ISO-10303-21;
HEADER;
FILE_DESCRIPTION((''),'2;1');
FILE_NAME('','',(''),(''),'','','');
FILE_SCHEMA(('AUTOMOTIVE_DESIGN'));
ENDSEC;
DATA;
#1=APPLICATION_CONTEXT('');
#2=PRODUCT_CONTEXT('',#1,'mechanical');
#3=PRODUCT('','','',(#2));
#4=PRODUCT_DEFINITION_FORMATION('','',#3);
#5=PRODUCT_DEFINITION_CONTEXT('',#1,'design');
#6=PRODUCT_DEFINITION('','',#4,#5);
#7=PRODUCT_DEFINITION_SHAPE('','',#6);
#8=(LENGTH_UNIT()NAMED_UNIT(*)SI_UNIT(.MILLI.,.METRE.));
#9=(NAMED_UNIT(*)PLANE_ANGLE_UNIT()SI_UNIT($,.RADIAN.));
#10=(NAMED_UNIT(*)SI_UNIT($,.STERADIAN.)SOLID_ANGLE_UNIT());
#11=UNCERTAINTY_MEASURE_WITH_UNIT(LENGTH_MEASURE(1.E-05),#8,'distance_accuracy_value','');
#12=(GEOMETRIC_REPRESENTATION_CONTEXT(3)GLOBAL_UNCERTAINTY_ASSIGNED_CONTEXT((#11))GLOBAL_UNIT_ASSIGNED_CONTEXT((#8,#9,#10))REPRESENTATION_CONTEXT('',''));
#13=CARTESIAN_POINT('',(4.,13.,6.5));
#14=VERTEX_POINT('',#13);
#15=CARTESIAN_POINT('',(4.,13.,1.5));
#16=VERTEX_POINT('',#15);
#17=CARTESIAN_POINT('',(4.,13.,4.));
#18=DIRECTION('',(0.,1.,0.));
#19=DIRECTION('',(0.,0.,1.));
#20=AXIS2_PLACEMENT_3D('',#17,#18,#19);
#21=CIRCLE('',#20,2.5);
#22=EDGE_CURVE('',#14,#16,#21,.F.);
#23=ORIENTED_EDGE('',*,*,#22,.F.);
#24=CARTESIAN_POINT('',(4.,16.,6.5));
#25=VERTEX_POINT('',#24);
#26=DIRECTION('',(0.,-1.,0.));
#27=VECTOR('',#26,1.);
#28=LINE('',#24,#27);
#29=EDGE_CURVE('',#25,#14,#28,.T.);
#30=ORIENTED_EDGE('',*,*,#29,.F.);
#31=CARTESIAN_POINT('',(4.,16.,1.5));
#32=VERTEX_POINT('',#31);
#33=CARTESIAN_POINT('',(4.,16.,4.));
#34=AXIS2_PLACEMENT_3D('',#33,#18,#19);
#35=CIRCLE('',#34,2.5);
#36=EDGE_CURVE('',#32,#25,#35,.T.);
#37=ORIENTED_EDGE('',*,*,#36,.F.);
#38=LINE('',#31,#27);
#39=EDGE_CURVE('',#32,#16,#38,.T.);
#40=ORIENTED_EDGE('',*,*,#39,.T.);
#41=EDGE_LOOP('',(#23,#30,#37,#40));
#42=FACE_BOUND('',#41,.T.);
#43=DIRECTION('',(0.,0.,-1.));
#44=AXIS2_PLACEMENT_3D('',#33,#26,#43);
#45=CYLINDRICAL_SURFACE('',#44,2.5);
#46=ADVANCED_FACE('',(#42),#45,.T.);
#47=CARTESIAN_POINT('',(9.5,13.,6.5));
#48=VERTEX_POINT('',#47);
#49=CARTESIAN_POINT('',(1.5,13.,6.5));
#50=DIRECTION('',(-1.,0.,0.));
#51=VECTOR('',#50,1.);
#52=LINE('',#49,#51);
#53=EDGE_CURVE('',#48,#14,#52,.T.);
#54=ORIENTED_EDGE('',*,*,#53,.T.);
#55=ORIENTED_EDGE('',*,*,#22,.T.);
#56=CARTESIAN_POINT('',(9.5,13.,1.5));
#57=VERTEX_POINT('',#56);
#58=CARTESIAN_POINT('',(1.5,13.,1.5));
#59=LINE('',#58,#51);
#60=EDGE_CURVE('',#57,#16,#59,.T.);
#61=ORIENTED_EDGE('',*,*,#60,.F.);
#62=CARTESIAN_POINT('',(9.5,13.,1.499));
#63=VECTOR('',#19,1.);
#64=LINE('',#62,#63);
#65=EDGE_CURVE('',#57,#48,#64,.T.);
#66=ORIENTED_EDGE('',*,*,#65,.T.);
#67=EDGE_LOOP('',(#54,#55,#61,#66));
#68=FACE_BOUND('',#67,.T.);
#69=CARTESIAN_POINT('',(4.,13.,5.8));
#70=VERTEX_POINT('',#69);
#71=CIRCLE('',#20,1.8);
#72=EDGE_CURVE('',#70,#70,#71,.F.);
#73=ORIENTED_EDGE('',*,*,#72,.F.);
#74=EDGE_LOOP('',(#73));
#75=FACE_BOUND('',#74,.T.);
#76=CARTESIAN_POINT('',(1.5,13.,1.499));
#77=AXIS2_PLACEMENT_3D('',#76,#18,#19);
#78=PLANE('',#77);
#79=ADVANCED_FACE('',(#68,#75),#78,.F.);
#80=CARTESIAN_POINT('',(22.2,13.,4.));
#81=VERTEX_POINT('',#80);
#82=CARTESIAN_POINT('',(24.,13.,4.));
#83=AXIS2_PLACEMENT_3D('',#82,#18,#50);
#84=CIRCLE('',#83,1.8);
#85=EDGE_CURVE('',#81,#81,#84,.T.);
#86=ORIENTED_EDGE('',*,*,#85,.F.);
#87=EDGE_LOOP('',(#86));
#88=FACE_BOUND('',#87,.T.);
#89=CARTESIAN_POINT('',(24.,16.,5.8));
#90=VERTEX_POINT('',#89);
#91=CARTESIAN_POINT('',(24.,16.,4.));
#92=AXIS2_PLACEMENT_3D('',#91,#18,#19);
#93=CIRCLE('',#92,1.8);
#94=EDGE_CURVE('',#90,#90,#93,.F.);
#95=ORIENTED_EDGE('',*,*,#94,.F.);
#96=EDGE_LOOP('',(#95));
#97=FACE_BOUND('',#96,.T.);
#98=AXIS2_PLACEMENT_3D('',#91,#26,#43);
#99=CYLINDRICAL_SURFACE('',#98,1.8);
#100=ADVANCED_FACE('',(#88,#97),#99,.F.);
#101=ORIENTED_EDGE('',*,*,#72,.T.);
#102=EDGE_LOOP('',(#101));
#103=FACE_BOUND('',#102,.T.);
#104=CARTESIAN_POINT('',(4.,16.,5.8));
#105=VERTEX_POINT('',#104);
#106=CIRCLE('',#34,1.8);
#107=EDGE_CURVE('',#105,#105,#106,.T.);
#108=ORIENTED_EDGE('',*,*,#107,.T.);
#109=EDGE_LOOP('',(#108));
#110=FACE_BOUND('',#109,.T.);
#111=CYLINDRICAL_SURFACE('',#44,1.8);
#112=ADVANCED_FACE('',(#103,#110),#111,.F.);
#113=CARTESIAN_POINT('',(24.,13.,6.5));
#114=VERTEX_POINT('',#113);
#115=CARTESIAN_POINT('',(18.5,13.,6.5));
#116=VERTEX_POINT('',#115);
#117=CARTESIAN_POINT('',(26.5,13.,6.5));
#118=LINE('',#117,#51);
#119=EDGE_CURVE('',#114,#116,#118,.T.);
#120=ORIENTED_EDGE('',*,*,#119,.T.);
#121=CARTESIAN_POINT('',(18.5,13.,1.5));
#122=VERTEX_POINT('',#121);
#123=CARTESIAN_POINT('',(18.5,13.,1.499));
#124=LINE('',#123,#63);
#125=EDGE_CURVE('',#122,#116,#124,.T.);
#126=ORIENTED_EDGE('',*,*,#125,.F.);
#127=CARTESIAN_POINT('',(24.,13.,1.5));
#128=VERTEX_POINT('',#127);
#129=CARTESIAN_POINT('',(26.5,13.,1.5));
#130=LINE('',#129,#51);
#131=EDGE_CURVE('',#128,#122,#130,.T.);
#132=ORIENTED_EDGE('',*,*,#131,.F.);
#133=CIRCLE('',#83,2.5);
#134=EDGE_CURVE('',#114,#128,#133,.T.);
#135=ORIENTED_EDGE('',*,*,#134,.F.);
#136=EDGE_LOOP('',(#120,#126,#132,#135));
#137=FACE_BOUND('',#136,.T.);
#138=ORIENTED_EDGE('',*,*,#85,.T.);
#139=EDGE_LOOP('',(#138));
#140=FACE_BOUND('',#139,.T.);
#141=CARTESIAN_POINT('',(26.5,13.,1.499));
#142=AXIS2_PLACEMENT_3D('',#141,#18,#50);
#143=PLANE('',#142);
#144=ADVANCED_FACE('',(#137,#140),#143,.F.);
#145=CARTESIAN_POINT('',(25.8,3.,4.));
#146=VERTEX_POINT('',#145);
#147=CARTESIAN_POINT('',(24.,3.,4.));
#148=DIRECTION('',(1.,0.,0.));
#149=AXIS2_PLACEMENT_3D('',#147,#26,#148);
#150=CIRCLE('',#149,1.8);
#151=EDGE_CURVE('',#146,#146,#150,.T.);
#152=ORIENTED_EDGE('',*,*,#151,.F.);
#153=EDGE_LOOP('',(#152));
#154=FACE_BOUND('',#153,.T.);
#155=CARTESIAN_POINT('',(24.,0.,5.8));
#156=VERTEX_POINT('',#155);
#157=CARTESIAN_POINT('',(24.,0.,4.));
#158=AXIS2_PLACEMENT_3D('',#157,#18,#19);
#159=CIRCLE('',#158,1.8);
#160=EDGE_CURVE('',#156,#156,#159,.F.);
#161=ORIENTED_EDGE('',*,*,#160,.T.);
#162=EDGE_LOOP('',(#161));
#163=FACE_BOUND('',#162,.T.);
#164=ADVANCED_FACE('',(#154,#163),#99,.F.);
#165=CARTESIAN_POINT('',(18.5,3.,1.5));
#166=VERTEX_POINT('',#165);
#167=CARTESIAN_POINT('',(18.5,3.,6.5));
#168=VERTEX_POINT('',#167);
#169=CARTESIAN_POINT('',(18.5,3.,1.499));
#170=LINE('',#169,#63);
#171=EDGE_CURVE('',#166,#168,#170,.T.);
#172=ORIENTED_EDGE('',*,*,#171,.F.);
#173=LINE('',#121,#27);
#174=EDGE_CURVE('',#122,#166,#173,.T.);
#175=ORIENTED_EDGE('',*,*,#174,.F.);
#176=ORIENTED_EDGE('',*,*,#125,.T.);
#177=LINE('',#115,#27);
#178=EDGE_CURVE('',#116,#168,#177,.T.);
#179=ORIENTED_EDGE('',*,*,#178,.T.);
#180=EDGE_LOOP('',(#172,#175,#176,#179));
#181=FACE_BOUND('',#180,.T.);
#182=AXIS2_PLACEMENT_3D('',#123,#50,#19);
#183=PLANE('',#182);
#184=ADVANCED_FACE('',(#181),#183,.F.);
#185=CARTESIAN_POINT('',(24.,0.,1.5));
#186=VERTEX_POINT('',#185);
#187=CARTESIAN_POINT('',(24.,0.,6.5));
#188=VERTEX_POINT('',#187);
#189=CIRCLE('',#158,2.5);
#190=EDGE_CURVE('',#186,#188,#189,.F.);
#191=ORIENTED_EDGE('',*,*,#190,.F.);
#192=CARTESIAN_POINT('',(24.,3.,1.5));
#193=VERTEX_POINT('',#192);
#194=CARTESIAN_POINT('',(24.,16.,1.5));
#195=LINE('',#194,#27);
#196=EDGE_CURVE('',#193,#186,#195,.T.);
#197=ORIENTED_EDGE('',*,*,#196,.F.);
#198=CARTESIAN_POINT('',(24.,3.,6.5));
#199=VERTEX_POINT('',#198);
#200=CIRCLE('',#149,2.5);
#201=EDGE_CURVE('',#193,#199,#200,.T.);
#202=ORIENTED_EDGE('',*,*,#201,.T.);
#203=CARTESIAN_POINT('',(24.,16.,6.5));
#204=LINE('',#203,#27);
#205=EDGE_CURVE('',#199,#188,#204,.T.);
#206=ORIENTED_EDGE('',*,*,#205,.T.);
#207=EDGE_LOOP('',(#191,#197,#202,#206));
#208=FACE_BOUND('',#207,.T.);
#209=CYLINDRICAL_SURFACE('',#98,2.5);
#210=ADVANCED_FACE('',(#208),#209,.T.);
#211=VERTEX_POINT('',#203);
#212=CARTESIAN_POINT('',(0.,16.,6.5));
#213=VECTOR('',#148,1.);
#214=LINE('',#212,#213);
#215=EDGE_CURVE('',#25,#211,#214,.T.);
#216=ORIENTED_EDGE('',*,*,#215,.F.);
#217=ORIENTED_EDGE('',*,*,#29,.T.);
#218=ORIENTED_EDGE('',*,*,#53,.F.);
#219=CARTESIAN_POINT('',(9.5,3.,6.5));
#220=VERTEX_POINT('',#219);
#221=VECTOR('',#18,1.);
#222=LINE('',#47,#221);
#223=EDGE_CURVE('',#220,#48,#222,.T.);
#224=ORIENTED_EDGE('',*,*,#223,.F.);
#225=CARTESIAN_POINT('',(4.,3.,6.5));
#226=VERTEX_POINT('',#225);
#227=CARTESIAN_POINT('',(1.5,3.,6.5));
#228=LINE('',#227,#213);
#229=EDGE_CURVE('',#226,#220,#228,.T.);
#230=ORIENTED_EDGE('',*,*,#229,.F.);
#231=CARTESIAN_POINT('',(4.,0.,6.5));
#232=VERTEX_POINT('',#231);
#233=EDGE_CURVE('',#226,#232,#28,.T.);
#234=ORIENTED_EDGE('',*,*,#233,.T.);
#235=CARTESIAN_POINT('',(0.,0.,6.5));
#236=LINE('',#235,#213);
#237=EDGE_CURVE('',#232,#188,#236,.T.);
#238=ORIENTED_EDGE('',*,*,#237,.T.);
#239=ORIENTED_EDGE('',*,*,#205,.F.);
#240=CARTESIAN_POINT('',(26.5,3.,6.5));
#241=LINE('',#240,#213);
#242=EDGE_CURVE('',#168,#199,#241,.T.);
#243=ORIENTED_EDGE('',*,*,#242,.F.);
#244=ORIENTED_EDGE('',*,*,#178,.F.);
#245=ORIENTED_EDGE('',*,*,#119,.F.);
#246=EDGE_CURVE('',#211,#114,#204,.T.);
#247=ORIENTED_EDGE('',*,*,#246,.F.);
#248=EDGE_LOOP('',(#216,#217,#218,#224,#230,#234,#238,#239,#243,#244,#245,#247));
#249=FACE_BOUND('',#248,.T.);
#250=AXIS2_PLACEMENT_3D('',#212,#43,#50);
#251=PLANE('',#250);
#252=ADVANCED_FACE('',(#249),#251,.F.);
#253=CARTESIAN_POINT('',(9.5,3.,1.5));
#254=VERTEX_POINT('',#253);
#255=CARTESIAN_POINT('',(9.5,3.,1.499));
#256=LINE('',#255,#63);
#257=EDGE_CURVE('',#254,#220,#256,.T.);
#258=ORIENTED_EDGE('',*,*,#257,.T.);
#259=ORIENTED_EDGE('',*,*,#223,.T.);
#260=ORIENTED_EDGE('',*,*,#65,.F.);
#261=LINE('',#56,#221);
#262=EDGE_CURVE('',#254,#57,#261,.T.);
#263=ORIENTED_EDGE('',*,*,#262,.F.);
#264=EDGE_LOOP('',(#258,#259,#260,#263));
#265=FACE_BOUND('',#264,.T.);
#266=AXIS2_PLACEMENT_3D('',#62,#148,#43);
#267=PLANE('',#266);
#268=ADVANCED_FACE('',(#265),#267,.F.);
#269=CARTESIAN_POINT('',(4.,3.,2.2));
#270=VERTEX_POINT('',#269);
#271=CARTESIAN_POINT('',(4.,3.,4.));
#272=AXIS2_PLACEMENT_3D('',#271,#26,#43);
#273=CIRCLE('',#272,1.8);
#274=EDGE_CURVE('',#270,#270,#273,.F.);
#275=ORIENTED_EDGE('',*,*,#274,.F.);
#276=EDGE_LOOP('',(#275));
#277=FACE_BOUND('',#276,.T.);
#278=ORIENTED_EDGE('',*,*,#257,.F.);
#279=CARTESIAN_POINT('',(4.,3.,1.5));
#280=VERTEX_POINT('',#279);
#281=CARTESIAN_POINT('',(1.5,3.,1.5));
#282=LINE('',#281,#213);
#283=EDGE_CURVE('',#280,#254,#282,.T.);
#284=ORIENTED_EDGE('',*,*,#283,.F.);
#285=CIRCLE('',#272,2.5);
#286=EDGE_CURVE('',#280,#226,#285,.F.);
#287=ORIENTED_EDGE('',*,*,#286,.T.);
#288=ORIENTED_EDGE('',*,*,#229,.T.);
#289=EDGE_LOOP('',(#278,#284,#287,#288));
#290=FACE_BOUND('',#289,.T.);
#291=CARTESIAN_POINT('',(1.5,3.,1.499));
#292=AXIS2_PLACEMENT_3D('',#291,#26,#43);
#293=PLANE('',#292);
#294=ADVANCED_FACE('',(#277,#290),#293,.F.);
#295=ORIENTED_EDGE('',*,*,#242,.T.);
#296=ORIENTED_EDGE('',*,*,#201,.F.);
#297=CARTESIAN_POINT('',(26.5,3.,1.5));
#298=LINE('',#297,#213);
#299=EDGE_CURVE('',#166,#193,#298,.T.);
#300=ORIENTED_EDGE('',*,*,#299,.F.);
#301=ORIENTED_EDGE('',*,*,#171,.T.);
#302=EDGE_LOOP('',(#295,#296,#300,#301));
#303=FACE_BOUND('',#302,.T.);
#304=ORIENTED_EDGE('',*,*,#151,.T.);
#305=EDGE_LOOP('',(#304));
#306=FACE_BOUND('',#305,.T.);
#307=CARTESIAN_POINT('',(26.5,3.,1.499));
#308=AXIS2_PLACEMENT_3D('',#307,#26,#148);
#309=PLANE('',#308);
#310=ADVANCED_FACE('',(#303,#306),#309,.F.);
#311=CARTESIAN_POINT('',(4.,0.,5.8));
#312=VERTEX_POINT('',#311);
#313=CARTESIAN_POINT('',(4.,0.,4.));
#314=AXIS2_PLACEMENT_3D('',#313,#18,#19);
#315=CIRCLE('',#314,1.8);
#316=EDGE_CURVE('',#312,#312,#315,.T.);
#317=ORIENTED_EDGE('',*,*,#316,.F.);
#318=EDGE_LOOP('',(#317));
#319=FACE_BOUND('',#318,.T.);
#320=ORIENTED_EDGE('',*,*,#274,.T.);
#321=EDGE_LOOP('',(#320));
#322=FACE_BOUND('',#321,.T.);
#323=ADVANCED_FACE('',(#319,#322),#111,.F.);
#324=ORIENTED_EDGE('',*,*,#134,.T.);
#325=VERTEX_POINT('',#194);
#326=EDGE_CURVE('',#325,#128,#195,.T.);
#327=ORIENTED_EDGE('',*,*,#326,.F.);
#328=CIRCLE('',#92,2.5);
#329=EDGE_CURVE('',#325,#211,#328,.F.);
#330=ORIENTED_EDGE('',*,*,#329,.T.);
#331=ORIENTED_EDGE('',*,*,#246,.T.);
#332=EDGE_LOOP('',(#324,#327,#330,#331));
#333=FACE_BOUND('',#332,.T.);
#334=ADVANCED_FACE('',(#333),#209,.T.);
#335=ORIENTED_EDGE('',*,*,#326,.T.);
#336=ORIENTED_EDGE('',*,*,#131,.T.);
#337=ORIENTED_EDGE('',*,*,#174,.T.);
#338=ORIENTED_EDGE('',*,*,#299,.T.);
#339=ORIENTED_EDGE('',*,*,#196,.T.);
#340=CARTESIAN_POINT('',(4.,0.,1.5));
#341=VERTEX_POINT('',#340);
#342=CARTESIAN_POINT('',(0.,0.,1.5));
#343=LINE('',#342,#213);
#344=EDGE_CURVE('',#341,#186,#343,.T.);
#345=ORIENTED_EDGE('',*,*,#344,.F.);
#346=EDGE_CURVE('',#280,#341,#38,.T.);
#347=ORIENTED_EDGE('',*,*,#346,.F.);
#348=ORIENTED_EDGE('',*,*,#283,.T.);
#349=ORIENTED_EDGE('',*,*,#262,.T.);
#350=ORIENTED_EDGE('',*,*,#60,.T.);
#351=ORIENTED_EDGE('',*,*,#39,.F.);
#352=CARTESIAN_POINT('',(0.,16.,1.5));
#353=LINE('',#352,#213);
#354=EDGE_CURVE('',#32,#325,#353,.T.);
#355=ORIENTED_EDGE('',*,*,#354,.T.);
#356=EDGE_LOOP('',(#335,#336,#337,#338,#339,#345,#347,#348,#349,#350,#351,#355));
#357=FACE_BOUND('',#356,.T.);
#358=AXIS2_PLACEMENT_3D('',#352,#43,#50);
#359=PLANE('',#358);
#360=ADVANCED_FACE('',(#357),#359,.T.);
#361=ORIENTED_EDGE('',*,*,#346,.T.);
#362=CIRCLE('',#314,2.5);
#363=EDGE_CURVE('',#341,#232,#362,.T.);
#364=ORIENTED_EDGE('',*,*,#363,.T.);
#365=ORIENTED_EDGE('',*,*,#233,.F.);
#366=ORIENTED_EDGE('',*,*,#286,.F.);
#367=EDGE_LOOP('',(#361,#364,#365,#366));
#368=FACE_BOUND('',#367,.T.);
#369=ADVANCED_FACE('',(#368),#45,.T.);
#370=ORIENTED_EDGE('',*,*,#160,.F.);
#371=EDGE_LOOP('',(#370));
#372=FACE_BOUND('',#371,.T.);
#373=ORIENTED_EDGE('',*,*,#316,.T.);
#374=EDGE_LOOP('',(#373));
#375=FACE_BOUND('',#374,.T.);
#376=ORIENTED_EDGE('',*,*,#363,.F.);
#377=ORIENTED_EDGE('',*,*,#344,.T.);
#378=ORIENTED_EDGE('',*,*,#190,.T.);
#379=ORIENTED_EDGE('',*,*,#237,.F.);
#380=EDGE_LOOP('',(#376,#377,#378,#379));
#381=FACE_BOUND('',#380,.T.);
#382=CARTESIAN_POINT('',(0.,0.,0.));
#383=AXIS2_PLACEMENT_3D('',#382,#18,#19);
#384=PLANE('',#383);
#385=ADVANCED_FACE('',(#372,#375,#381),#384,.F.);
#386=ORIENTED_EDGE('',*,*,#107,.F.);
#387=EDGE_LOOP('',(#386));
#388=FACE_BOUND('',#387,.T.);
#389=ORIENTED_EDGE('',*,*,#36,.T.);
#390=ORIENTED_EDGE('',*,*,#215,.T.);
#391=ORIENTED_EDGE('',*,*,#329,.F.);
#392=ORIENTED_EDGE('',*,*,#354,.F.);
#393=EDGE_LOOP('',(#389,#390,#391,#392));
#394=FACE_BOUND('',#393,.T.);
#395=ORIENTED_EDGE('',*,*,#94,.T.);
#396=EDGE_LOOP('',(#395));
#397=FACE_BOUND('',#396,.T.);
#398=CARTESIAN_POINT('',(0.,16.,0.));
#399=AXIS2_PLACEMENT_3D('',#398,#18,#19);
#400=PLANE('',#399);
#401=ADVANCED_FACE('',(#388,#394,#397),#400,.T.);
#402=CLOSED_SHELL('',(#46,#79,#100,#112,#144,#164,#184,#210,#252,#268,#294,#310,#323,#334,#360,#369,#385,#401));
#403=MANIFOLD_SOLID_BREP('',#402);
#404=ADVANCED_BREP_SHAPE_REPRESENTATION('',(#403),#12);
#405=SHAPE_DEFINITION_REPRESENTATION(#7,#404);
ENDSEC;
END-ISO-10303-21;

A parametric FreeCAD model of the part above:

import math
import FreeCAD as App
import Part
import Sketcher
from FreeCAD import Vector
Q = App.Units.Quantity


def add_polygon(sketch, points):
    """Adds a closed chain of lines whose ends are joined by coincident constraints."""
    first, n = sketch.GeometryCount, len(points)
    for a, b in zip(points, points[1:] + points[:1]):
        sketch.addGeometry(Part.LineSegment(App.Vector(*a, 0), App.Vector(*b, 0)), False)
    for i in range(n):
        sketch.addConstraint(Sketcher.Constraint("Coincident", first + i, 2, first + (i + 1) % n, 1))

doc = App.newDocument("Part")
body = doc.addObject("PartDesign::Body", "Body")

# Sketch on XZ plane
sketch1 = body.newObject("Sketcher::SketchObject", "Sketch")
sketch1.AttachmentSupport = (doc.getObject("XZ_Plane"), [""])
sketch1.MapMode = "FlatFace"
sketch1.addGeometry([
    Part.LineSegment(Vector(24, 1.5, 0), Vector(4, 1.5, 0)),  # 0
    Part.ArcOfCircle(Part.Circle(Vector(4, 4, 0), Vector(0, 0, 1), 2.5), math.radians(90), math.radians(270)),  # 1
    Part.LineSegment(Vector(4, 6.5, 0), Vector(24, 6.5, 0)),  # 2
    Part.ArcOfCircle(Part.Circle(Vector(24, 4, 0), Vector(0, 0, 1), 2.5), math.radians(-90), math.radians(90)),  # 3
    Part.Circle(Vector(4, 4, 0), Vector(0, 0, 1), 1.8),  # 4
    Part.Circle(Vector(24, 4, 0), Vector(0, 0, 1), 1.8),  # 5
], False)
sketch1.addConstraint([
    Sketcher.Constraint("Tangent", 0, 2, 1, 2),
    Sketcher.Constraint("Tangent", 1, 1, 2, 1),
    Sketcher.Constraint("Tangent", 2, 2, 3, 2),
    Sketcher.Constraint("Tangent", 3, 1, 0, 1),
    Sketcher.Constraint("Horizontal", 0),
    Sketcher.Constraint("Horizontal", 2),
    Sketcher.Constraint("Coincident", 4, 3, 1, 3),
    Sketcher.Constraint("Coincident", 5, 3, 3, 3),
    Sketcher.Constraint("Equal", 4, 5),
    Sketcher.Constraint("Diameter", 4, Q("3.6 mm")),
    Sketcher.Constraint("Radius", 1, Q("2.5 mm")),
    Sketcher.Constraint("DistanceX", 0, 2, 0, 1, Q("20 mm")),
    Sketcher.Constraint("DistanceX", -1, 1, 1, 3, Q("4 mm")),
    Sketcher.Constraint("DistanceY", -1, 1, 1, 3, Q("4 mm")),
])
pad1 = body.newObject("PartDesign::Pad", "Pad")
pad1.Profile = sketch1
pad1.Length = 16
pad1.Reversed = True

# Sketch on XY plane
sketch2 = body.newObject("Sketcher::SketchObject", "Sketch001")
sketch2.AttachmentSupport = (doc.getObject("XY_Plane"), [""])
sketch2.MapMode = "FlatFace"
sketch2.AttachmentOffset = App.Placement(Vector(0, 0, 6.5), App.Rotation())
add_polygon(sketch2, [(18, 13), (18, 3), (26, 3), (26, 13)])  # lines 0-3
sketch2.addConstraint([
    Sketcher.Constraint("Vertical", 0),
    Sketcher.Constraint("Horizontal", 1),
    Sketcher.Constraint("Vertical", 2),
    Sketcher.Constraint("Horizontal", 3),
    Sketcher.Constraint("DistanceX", 1, 1, 1, 2, Q("8 mm")),
    Sketcher.Constraint("DistanceY", 0, 2, 0, 1, Q("10 mm")),
    Sketcher.Constraint("DistanceY", -1, 1, 0, 2, Q("3 mm")),
    Sketcher.Constraint("DistanceX", -1, 1, 0, 2, Q("18.5 mm")),
])
pocket1 = body.newObject("PartDesign::Pocket", "Pocket")
pocket1.Profile = sketch2
pocket1.Type = "UpToFirst"

# Sketch on XY plane
sketch3 = body.newObject("Sketcher::SketchObject", "Sketch002")
sketch3.AttachmentSupport = (doc.getObject("XY_Plane"), [""])
sketch3.MapMode = "FlatFace"
sketch3.AttachmentOffset = App.Placement(Vector(0, 0, 6.5), App.Rotation())
add_polygon(sketch3, [(2, 13), (2, 3), (10, 3), (10, 13)])  # lines 0-3
sketch3.addConstraint([
    Sketcher.Constraint("Vertical", 0),
    Sketcher.Constraint("Horizontal", 1),
    Sketcher.Constraint("Vertical", 2),
    Sketcher.Constraint("Horizontal", 3),
    Sketcher.Constraint("DistanceX", 1, 1, 1, 2, Q("8 mm")),
    Sketcher.Constraint("DistanceY", 0, 2, 0, 1, Q("10 mm")),
    Sketcher.Constraint("DistanceY", -1, 1, 0, 2, Q("3 mm")),
    Sketcher.Constraint("DistanceX", -1, 1, 0, 2, Q("1.5 mm")),
])
pocket2 = body.newObject("PartDesign::Pocket", "Pocket001")
pocket2.Profile = sketch3
pocket2.Type = "UpToFirst"

doc.recompute()
